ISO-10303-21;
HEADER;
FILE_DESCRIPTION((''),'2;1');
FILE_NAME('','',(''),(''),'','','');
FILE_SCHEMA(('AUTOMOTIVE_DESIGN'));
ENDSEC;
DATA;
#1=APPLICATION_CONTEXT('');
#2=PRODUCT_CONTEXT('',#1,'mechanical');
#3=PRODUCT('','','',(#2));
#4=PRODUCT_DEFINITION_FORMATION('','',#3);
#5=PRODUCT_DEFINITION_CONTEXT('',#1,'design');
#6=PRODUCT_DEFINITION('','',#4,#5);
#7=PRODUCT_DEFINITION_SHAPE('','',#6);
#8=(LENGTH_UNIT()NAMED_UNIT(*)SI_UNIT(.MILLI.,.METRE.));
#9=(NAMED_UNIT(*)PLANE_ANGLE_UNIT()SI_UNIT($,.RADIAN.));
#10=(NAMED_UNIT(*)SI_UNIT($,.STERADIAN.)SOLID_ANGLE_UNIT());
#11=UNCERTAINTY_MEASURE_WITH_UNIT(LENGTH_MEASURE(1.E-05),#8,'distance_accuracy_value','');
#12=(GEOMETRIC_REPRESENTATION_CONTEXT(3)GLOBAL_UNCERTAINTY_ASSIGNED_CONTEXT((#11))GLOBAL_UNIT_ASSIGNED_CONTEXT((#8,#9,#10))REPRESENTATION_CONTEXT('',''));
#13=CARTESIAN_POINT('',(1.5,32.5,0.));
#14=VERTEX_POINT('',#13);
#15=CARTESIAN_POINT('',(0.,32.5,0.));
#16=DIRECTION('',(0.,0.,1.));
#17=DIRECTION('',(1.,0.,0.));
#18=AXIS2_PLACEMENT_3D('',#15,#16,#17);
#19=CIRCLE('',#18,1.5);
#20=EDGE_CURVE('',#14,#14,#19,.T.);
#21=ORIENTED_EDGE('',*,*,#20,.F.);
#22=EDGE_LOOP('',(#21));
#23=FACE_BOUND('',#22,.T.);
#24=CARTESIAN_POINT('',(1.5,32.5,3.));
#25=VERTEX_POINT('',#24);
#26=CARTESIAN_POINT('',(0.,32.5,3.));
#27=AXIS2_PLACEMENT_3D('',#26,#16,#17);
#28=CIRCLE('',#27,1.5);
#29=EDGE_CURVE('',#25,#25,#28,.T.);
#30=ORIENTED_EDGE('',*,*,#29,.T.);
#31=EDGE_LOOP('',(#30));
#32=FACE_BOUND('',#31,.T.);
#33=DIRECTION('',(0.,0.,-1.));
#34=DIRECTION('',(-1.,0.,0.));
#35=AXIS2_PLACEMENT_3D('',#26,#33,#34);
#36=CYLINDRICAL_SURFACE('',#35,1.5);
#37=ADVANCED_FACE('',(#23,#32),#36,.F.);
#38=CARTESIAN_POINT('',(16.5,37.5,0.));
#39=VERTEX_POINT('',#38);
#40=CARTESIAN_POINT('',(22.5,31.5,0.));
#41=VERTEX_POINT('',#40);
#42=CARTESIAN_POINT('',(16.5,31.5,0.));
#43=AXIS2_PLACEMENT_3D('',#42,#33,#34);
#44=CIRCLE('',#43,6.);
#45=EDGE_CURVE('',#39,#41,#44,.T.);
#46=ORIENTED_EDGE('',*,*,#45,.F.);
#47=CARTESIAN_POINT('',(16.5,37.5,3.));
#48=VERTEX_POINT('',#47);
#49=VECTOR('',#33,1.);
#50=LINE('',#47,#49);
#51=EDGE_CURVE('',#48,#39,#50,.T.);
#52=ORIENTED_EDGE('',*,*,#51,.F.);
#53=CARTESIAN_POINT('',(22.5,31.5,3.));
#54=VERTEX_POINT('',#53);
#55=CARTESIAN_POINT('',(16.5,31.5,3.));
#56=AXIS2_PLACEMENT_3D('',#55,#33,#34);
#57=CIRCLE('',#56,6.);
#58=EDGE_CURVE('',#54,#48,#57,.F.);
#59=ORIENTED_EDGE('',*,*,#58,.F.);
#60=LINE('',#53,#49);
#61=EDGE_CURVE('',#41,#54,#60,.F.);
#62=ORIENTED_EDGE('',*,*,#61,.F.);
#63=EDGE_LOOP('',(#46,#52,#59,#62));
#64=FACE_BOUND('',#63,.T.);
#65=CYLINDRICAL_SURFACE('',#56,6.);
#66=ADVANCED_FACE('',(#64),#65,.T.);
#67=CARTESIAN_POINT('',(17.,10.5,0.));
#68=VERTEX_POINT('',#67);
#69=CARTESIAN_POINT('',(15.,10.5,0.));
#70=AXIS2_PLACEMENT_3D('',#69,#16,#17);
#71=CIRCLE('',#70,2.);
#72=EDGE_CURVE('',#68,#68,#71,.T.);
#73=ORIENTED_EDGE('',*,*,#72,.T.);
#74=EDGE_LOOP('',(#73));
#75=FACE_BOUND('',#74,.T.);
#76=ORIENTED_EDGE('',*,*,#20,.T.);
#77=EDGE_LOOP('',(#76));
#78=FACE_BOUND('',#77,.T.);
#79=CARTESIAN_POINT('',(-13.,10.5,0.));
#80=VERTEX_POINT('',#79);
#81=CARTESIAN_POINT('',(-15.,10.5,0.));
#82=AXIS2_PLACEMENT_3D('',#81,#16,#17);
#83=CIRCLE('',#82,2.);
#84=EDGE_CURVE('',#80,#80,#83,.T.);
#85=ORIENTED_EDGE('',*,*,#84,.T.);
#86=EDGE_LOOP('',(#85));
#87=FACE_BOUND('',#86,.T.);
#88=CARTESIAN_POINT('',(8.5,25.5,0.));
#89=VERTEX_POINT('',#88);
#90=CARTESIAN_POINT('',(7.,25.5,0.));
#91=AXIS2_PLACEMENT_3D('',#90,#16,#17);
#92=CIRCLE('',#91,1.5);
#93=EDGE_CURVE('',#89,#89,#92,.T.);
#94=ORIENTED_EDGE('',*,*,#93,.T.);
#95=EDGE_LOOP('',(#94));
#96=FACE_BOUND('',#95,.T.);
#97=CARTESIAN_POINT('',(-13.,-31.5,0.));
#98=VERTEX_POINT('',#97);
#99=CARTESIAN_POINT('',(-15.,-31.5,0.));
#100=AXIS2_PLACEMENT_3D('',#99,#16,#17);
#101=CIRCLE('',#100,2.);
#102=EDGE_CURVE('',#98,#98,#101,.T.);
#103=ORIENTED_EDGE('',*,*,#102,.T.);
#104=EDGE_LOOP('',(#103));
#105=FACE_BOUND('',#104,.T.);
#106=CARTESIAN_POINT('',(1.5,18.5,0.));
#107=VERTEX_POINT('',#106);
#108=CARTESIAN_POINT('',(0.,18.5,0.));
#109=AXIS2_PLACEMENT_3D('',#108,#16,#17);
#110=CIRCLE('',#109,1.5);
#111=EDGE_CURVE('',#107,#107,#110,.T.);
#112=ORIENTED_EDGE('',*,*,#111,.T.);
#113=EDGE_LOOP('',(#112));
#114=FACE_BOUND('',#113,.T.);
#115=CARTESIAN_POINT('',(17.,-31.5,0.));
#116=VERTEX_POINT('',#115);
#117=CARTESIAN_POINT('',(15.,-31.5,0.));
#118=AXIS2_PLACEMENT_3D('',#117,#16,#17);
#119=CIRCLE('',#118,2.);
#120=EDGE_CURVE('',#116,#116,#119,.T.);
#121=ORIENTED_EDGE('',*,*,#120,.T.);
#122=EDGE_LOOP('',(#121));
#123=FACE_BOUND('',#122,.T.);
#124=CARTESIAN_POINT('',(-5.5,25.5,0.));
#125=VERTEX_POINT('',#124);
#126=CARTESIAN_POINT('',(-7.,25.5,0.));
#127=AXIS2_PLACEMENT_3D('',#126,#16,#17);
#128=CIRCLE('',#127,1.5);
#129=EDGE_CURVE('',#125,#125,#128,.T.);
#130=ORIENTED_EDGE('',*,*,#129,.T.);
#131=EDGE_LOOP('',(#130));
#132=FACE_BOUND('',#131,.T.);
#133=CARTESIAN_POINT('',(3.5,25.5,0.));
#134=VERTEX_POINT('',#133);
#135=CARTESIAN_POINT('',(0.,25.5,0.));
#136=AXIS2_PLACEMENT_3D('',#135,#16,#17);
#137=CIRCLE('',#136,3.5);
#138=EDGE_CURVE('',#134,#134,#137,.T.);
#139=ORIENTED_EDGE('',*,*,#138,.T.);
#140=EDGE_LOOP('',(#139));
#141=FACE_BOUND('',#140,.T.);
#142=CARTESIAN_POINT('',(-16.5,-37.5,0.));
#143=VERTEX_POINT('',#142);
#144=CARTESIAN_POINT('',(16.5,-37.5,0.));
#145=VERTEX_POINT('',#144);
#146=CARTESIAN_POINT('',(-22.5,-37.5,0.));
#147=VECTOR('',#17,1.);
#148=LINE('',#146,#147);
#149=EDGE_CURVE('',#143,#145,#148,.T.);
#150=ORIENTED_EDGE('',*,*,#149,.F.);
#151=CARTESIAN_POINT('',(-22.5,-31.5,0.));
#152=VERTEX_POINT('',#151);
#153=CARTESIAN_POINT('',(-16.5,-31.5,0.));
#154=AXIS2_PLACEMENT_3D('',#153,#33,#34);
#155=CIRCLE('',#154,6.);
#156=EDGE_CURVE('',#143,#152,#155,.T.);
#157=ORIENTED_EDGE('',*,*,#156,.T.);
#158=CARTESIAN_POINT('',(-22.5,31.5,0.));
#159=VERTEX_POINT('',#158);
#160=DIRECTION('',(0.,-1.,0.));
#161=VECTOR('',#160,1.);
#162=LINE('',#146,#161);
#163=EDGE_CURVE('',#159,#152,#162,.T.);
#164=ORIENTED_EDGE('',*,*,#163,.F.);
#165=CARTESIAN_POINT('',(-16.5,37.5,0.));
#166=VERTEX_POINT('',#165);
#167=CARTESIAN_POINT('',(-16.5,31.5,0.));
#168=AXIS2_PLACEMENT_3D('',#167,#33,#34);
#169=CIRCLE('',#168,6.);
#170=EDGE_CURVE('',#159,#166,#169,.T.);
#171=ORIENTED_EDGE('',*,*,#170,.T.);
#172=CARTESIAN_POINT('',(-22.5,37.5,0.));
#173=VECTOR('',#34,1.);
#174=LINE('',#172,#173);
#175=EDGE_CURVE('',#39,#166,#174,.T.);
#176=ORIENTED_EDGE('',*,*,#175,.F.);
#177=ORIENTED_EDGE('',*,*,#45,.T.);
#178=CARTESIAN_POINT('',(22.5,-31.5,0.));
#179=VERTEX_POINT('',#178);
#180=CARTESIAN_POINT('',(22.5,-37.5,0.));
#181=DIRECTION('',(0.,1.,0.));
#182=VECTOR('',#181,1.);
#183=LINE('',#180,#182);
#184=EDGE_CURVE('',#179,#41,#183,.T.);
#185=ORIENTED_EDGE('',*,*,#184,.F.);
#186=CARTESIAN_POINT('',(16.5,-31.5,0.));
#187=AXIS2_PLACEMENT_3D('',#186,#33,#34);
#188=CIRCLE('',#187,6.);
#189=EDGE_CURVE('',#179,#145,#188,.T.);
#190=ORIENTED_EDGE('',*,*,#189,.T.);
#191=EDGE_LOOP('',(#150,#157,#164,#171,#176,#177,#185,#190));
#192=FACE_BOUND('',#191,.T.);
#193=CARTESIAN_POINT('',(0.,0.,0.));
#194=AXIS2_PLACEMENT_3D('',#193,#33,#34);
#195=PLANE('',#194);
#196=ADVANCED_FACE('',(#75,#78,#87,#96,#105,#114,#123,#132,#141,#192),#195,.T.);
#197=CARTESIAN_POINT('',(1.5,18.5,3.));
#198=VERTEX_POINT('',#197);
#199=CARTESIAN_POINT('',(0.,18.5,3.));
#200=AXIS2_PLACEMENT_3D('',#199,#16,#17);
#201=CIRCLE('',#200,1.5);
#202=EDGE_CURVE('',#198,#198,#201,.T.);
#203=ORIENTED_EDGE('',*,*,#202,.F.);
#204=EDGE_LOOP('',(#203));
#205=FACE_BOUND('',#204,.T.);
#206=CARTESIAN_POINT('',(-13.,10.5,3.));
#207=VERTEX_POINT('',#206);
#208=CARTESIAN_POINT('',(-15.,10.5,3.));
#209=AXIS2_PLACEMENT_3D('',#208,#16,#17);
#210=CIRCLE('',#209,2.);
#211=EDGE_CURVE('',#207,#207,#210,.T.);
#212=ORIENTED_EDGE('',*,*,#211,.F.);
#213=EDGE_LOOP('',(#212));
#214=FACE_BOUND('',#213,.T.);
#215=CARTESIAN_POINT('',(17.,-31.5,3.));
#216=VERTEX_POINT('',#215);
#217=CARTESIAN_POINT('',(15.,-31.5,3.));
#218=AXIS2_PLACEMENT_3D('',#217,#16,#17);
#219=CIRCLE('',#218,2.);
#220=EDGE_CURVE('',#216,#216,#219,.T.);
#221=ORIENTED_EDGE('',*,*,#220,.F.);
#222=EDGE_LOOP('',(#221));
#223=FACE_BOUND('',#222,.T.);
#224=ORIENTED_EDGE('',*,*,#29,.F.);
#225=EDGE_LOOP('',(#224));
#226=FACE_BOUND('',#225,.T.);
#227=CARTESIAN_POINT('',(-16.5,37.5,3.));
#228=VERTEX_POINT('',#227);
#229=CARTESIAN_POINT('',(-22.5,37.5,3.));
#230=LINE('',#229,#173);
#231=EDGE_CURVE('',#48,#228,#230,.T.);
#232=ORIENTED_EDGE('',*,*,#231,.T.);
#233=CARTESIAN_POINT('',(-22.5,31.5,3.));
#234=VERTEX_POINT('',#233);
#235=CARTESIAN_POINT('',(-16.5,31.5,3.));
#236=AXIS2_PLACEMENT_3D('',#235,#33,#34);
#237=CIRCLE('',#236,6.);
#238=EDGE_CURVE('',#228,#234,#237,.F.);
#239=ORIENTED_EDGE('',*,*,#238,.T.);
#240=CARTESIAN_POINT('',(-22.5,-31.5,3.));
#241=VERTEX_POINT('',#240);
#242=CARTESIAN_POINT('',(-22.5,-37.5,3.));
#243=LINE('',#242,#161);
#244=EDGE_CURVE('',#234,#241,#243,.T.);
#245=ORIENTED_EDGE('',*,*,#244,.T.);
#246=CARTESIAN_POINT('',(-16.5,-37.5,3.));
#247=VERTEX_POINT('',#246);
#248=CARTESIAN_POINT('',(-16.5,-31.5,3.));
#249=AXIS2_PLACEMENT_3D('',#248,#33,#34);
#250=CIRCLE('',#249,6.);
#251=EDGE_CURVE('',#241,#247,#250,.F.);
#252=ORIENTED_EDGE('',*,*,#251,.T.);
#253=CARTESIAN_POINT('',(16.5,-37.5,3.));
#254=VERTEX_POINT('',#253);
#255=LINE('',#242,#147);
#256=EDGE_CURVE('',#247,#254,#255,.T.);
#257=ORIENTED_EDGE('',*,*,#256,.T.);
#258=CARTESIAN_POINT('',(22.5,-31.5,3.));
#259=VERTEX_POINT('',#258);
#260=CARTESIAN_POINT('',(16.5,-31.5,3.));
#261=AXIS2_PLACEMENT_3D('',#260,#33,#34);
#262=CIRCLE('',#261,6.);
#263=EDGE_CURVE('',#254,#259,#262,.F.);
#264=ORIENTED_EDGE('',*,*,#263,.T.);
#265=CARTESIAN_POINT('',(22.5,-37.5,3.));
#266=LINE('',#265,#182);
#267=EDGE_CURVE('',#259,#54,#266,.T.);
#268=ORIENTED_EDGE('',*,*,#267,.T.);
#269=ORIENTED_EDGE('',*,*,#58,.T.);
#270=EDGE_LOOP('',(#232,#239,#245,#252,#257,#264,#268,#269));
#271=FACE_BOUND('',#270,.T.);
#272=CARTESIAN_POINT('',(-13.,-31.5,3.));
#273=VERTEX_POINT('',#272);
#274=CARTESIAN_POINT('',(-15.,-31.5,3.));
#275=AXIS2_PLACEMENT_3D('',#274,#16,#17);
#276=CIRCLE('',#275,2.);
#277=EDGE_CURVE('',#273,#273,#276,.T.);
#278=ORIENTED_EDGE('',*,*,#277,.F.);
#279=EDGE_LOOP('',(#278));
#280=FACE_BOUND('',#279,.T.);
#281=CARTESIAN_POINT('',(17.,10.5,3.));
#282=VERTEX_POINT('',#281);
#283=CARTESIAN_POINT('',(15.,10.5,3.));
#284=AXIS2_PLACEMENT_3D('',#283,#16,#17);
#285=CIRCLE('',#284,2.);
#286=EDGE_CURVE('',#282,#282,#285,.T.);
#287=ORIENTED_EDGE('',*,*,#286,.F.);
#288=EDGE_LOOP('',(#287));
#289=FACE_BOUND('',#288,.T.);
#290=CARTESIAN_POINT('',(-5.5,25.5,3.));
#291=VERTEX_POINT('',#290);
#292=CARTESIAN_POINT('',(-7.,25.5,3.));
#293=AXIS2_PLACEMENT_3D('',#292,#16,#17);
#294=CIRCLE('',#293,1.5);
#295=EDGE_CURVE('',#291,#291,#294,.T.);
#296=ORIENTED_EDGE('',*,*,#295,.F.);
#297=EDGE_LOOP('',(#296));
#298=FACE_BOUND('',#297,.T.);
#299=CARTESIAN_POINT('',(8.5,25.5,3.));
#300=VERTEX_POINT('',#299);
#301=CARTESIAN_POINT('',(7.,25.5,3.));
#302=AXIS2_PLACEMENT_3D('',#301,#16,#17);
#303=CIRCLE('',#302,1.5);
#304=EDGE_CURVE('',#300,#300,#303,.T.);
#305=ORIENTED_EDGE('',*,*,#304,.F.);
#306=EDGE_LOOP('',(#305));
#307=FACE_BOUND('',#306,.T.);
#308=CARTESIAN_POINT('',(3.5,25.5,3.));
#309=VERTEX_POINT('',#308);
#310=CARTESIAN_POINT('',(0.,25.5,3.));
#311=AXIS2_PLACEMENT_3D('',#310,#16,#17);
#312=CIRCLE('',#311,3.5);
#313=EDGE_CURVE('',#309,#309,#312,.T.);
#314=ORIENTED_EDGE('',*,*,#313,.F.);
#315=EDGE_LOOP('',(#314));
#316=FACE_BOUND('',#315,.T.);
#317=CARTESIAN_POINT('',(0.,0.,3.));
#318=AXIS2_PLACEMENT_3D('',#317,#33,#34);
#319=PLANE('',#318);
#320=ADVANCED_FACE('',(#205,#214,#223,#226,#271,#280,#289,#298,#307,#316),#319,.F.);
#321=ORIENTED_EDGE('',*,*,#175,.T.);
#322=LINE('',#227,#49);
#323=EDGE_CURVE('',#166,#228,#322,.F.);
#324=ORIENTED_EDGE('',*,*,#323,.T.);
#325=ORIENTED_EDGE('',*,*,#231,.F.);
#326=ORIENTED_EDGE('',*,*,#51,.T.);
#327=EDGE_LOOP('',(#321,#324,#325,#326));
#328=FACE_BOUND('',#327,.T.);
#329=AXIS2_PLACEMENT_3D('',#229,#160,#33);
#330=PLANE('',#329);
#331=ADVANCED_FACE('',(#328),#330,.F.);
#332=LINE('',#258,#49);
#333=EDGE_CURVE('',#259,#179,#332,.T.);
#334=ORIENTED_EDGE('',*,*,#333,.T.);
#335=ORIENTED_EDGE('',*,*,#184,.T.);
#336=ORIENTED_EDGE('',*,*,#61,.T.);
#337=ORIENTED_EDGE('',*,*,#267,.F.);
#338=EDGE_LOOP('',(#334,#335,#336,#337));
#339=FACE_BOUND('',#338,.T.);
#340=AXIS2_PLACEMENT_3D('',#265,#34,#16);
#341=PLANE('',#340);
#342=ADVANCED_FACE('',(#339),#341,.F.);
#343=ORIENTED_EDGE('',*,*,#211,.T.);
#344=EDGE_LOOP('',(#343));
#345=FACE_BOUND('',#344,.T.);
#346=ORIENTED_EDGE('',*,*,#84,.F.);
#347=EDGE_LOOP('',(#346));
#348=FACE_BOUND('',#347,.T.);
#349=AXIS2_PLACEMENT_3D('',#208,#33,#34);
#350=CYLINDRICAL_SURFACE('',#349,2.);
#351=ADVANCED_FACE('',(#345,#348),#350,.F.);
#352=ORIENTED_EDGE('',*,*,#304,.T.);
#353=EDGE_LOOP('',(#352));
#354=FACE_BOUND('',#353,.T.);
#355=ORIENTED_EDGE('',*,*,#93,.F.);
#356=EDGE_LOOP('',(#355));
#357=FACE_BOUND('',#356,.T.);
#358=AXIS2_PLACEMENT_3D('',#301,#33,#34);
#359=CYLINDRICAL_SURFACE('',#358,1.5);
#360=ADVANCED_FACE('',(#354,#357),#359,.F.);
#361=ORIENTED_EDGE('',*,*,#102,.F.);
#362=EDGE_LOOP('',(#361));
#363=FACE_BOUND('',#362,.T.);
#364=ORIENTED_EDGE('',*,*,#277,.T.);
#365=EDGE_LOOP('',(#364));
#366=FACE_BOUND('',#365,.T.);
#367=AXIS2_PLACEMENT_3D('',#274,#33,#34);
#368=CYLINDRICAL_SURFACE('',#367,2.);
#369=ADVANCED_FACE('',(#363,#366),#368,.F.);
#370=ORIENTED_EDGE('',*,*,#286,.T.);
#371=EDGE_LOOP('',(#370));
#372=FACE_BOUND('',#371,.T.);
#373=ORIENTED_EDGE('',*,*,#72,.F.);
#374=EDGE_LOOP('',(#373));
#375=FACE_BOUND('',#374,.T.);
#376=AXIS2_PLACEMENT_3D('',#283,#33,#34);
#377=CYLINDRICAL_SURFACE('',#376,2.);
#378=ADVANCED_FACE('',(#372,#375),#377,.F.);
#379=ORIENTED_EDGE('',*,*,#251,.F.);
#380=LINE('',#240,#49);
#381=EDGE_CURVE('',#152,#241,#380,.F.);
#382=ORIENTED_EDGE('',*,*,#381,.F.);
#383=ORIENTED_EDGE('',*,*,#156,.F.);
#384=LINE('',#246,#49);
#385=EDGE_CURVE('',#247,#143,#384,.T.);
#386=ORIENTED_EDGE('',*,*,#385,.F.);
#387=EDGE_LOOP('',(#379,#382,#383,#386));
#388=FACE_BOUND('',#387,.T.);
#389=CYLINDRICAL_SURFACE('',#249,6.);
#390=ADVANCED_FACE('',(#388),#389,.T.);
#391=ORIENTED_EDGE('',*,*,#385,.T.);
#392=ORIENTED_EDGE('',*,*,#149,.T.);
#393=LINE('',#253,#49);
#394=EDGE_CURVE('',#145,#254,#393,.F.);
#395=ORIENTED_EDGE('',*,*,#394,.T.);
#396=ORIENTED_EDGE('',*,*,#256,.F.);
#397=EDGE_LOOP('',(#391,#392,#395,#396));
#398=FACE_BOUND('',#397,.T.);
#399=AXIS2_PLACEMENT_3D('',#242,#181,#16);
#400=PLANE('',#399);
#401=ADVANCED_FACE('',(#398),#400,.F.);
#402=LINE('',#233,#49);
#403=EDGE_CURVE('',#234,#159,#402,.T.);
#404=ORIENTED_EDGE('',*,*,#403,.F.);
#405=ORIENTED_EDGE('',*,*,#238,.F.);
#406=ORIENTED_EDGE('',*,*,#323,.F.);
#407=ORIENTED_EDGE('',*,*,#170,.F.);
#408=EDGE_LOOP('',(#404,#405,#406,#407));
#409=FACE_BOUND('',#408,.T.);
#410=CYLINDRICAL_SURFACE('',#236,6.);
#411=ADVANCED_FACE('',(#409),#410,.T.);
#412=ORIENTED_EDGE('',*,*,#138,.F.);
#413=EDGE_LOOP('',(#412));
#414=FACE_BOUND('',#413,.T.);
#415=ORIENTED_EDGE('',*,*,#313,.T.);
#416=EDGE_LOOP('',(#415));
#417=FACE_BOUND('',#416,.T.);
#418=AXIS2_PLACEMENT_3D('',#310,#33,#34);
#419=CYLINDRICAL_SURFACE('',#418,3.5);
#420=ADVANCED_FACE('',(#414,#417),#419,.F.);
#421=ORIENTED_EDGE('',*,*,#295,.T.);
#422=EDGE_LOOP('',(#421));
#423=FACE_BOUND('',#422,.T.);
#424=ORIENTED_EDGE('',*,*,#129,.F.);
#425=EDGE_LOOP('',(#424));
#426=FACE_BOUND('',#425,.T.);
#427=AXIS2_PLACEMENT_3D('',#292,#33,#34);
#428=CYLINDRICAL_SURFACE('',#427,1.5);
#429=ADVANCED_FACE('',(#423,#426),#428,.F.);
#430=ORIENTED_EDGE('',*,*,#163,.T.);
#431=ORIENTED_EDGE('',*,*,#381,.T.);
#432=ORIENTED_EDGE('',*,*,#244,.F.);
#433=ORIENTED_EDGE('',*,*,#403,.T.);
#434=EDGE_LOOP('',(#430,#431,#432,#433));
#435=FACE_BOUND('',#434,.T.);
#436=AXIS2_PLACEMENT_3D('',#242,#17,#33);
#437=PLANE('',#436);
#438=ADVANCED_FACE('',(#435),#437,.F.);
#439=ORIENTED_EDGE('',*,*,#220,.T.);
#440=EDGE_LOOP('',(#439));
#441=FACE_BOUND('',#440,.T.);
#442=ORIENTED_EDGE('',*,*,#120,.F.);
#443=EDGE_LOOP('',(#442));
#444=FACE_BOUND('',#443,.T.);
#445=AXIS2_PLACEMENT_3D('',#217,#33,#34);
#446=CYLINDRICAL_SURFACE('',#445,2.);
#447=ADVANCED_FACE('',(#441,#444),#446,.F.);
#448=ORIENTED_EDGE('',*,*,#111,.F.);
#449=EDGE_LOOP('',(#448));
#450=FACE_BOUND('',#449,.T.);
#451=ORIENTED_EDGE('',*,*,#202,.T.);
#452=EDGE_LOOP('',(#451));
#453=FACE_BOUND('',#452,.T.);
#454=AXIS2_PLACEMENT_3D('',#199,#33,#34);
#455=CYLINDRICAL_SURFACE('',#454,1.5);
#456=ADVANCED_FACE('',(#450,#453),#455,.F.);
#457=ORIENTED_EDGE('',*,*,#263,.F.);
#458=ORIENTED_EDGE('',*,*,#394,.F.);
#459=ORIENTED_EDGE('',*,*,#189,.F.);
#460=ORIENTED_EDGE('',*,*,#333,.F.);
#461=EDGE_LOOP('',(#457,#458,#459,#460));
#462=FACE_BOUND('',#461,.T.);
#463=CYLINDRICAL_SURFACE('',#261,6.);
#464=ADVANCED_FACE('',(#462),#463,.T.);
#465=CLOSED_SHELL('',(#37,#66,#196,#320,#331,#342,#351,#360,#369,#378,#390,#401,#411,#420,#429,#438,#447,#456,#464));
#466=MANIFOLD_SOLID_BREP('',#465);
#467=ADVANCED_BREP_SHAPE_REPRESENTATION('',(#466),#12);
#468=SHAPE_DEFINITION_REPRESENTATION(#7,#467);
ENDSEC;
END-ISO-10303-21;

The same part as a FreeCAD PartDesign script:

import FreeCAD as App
import Part
import Sketcher
Q = App.Units.Quantity


def edges_at(feature, points):
    """Names of the edges that pass closest to the given points."""
    edges = feature.Shape.Edges
    near = lambda p: min(range(len(edges)), key=lambda i: edges[i].distToShape(Part.Vertex(*p))[0])
    return sorted({f"Edge{near(p) + 1}" for p in points})

doc = App.newDocument("Part")
body = doc.addObject("PartDesign::Body", "Body")

# Sketch on XY plane
sketch1 = body.newObject("Sketcher::SketchObject", "Sketch")
sketch1.AttachmentSupport = (doc.getObject("XY_Plane"), [""])
sketch1.MapMode = "FlatFace"
sketch1.addGeometry([
    Part.LineSegment(App.Vector(-22.5, 37.5, 0), App.Vector(-22.5, -37.5, 0)),  # 0
    Part.LineSegment(App.Vector(-22.5, -37.5, 0), App.Vector(22.5, -37.5, 0)),  # 1
    Part.LineSegment(App.Vector(22.5, -37.5, 0), App.Vector(22.5, 37.5, 0)),  # 2
    Part.LineSegment(App.Vector(22.5, 37.5, 0), App.Vector(-22.5, 37.5, 0)),  # 3
    Part.Circle(App.Vector(-15, -31.5, 0), App.Vector(0, 0, 1), 2),  # 4
    Part.Circle(App.Vector(15, -31.5, 0), App.Vector(0, 0, 1), 2),  # 5
    Part.Circle(App.Vector(-15, 10.5, 0), App.Vector(0, 0, 1), 2),  # 6
    Part.Circle(App.Vector(-7, 25.5, 0), App.Vector(0, 0, 1), 1.5),  # 7
    Part.Circle(App.Vector(15, 10.5, 0), App.Vector(0, 0, 1), 2),  # 8
    Part.Circle(App.Vector(0, 18.5, 0), App.Vector(0, 0, 1), 1.5),  # 9
    Part.Circle(App.Vector(0, 25.5, 0), App.Vector(0, 0, 1), 3.5),  # 10
    Part.Circle(App.Vector(7, 25.5, 0), App.Vector(0, 0, 1), 1.5),  # 11
    Part.Circle(App.Vector(0, 32.5, 0), App.Vector(0, 0, 1), 1.5),  # 12
], False)
sketch1.addConstraint([
    Sketcher.Constraint("Coincident", 0, 2, 1, 1),
    Sketcher.Constraint("Coincident", 1, 2, 2, 1),
    Sketcher.Constraint("Coincident", 2, 2, 3, 1),
    Sketcher.Constraint("Coincident", 3, 2, 0, 1),
    Sketcher.Constraint("Vertical", 0),
    Sketcher.Constraint("Horizontal", 1),
    Sketcher.Constraint("Vertical", 2),
    Sketcher.Constraint("Horizontal", 3),
    Sketcher.Constraint("Equal", 4, 5),
    Sketcher.Constraint("Equal", 5, 6),
    Sketcher.Constraint("Equal", 6, 8),
    Sketcher.Constraint("Equal", 7, 9),
    Sketcher.Constraint("Equal", 9, 11),
    Sketcher.Constraint("Equal", 11, 12),
    Sketcher.Constraint("Symmetric", 0, 2, 2, 2, -1, 1),
    Sketcher.Constraint("Symmetric", 4, 3, 5, 3, -2),
    Sketcher.Constraint("Symmetric", 6, 3, 8, 3, -2),
    Sketcher.Constraint("Symmetric", 7, 3, 11, 3, -2),
    Sketcher.Constraint("PointOnObject", 9, 3, -2),
    Sketcher.Constraint("PointOnObject", 10, 3, -2),
    Sketcher.Constraint("PointOnObject", 12, 3, -2),
    Sketcher.Constraint("Horizontal", 7, 3, 10, 3),
    Sketcher.Constraint("Vertical", 4, 3, 6, 3),
    Sketcher.Constraint("Diameter", 4, Q("4 mm")),
    Sketcher.Constraint("Diameter", 7, Q("3 mm")),
    Sketcher.Constraint("Diameter", 10, Q("7 mm")),
    Sketcher.Constraint("DistanceX", 1, 1, 1, 2, Q("45 mm")),
    Sketcher.Constraint("DistanceY", 0, 2, 0, 1, Q("75 mm")),
    Sketcher.Constraint("DistanceX", 4, 3, -1, 1, Q("15 mm")),
    Sketcher.Constraint("DistanceX", 7, 3, -1, 1, Q("7 mm")),
    Sketcher.Constraint("DistanceY", 4, 3, 6, 3, Q("42 mm")),
    Sketcher.Constraint("DistanceY", 6, 3, 7, 3, Q("15 mm")),
    Sketcher.Constraint("DistanceY", 9, 3, 7, 3, Q("7 mm")),
    Sketcher.Constraint("DistanceY", 10, 3, 12, 3, Q("7 mm")),
    Sketcher.Constraint("DistanceY", 0, 2, 4, 3, Q("6 mm")),
])
pad1 = body.newObject("PartDesign::Pad", "Pad")
pad1.Profile = sketch1
pad1.Length = 3
doc.recompute()

fillet = body.newObject("PartDesign::Fillet", "Fillet")
fillet.Base = (pad1, edges_at(pad1, [
    (22.5, -37.5, 1.5),
    (-22.5, -37.5, 1.5),
    (-22.5, 37.5, 1.5),
    (22.5, 37.5, 1.5),
]))
fillet.Radius = 6

doc.recompute()
